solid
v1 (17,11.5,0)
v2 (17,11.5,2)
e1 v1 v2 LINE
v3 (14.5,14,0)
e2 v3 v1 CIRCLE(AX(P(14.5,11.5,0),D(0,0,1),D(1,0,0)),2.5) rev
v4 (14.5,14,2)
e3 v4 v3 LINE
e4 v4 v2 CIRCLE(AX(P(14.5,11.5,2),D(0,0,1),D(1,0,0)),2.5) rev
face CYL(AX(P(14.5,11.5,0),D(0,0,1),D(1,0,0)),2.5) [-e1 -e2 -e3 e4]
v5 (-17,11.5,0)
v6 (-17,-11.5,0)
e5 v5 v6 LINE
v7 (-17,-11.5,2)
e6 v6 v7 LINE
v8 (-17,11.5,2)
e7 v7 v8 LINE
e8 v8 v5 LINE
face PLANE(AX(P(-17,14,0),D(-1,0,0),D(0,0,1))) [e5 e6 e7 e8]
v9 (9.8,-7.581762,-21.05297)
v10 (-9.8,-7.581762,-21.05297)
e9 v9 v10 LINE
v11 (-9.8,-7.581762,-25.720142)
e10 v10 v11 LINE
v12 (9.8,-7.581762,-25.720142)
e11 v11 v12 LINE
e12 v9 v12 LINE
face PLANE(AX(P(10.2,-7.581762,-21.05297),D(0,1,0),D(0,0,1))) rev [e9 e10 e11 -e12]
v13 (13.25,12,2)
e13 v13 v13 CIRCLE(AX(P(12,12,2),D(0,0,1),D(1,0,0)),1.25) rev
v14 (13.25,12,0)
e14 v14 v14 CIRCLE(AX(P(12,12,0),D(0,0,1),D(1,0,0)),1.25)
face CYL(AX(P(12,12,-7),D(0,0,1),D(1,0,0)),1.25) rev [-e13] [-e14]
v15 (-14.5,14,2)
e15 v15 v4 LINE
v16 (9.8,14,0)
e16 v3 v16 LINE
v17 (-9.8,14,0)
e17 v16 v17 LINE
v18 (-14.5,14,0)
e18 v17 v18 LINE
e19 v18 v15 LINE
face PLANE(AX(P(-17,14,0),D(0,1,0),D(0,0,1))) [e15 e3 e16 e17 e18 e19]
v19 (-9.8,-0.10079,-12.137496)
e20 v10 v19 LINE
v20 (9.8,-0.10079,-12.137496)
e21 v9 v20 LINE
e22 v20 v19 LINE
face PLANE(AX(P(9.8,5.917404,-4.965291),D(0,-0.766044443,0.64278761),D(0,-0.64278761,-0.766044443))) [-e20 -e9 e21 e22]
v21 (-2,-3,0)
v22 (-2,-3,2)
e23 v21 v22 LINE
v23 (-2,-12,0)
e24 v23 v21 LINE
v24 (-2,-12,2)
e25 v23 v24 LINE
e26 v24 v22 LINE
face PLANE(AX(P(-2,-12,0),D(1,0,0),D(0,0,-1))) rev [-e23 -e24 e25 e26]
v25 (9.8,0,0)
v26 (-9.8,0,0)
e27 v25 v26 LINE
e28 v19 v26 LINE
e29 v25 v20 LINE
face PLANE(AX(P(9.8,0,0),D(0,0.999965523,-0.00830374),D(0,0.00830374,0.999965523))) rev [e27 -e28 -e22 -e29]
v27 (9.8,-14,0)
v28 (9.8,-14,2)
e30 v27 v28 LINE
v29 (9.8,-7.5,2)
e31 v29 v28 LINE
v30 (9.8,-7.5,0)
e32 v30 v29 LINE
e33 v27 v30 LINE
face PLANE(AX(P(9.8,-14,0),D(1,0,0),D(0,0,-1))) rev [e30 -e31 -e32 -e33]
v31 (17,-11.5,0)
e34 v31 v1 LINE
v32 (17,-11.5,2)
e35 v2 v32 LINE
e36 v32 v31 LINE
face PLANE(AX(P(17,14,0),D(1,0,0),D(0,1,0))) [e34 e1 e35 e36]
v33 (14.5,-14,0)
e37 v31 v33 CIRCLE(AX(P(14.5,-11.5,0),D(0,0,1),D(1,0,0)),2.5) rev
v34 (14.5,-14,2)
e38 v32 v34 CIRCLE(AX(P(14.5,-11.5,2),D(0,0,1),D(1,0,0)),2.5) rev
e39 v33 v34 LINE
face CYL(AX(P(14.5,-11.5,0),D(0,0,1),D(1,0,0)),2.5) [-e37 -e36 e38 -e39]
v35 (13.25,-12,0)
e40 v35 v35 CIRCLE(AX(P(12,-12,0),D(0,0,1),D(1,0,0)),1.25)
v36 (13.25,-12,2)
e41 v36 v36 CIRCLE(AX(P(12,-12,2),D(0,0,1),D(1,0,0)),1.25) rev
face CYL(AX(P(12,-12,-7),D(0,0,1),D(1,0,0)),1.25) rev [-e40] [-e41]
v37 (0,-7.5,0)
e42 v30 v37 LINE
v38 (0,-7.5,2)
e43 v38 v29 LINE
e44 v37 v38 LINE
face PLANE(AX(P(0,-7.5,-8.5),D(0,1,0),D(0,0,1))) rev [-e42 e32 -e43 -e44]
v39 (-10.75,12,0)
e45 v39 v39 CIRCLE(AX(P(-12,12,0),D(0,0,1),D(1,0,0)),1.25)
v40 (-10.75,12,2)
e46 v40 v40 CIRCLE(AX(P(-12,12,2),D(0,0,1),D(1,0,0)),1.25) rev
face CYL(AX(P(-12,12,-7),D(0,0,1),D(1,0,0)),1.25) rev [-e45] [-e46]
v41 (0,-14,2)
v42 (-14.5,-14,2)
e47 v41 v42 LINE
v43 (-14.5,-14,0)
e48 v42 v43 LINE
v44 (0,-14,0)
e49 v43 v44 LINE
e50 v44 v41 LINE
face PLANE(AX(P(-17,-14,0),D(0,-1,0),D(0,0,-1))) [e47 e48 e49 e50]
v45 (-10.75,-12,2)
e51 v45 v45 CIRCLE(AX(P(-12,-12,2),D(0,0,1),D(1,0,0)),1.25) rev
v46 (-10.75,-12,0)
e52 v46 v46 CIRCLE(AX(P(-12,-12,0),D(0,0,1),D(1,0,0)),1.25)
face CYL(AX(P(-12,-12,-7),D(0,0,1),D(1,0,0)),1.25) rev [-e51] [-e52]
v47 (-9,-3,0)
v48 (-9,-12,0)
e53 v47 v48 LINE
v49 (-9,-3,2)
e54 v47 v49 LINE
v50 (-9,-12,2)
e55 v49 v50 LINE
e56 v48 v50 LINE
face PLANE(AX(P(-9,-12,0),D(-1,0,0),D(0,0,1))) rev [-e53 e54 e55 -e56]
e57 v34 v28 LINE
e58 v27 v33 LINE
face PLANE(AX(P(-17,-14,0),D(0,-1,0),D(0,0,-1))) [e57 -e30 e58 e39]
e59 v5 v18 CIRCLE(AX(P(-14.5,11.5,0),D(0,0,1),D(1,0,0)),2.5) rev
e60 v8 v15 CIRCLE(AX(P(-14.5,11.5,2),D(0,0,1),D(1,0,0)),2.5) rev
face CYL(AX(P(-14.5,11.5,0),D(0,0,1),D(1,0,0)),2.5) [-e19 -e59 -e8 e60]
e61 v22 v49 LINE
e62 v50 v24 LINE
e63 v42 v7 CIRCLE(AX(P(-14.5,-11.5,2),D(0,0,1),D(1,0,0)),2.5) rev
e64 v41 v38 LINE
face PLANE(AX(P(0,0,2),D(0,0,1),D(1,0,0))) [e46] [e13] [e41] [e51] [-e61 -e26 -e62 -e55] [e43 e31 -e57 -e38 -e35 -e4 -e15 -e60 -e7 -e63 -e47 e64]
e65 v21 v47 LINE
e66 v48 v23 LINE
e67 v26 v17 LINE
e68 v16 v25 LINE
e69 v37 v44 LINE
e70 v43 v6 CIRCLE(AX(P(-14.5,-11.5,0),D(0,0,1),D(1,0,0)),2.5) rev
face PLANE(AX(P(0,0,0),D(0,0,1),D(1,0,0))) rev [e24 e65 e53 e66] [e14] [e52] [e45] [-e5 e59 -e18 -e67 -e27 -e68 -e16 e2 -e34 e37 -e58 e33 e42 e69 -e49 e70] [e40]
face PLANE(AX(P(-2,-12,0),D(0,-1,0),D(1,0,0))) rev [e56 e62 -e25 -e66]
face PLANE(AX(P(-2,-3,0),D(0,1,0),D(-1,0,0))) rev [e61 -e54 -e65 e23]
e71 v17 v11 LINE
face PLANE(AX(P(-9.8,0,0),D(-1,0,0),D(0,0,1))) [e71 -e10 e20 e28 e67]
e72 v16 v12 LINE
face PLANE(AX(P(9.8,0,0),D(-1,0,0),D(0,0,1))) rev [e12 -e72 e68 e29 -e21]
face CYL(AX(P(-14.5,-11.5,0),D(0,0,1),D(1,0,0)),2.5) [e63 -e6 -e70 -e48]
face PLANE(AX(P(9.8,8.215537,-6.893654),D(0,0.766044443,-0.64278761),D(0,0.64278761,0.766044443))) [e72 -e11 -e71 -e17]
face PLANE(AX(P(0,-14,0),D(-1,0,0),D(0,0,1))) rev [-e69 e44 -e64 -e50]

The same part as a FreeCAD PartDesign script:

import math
import FreeCAD as App
import Part
import Sketcher

V = App.Vector
Q = App.Units.Quantity


def edges_at(feature, points):
    """Names of the edges that pass closest to the given points."""
    edges = feature.Shape.Edges
    near = lambda p: min(range(len(edges)), key=lambda i: edges[i].distToShape(Part.Vertex(*p))[0])
    return sorted({f"Edge{near(p) + 1}" for p in points})


def add_polygon(sketch, points):
    """Adds a closed chain of lines whose ends are joined by coincident constraints."""
    first, n = sketch.GeometryCount, len(points)
    for a, b in zip(points, points[1:] + points[:1]):
        sketch.addGeometry(Part.LineSegment(App.Vector(*a, 0), App.Vector(*b, 0)), False)
    for i in range(n):
        sketch.addConstraint(Sketcher.Constraint("Coincident", first + i, 2, first + (i + 1) % n, 1))

doc = App.newDocument("Part")
body = doc.addObject("PartDesign::Body", "Body")

sketch1 = doc.addObject("Sketcher::SketchObject", "Sketch")
body.addObject(sketch1)
sketch1.AttachmentSupport = (doc.XY_Plane, [""])
sketch1.MapMode = "FlatFace"
add_polygon(sketch1, [(-20, 16), (-20, -16), (20, -16), (20, 16)])
sketch1.addGeometry(Part.Circle(V(-11.5, -11.5, 0), V(0, 0, 1), 1.1), False)
sketch1.addGeometry(Part.Circle(V(11.5, -11.5, 0), V(0, 0, 1), 1.1), False)
sketch1.addGeometry(Part.Circle(V(-11.5, 11.5, 0), V(0, 0, 1), 1.1), False)
sketch1.addGeometry(Part.Circle(V(11.5, 11.5, 0), V(0, 0, 1), 1.1), False)
sketch1.addConstraint([
    Sketcher.Constraint("Vertical", 0),
    Sketcher.Constraint("Horizontal", 1),
    Sketcher.Constraint("Vertical", 2),
    Sketcher.Constraint("Horizontal", 3),
    Sketcher.Constraint("Equal", 4, 5),
    Sketcher.Constraint("Equal", 5, 6),
    Sketcher.Constraint("Equal", 6, 7),
    Sketcher.Constraint("Symmetric", 5, 3, 6, 3, -1, 1),
    Sketcher.Constraint("Symmetric", 4, 3, 7, 3, -1, 1),
    Sketcher.Constraint("Symmetric", 0, 2, 2, 2, -1, 1),
    Sketcher.Constraint("Symmetric", 4, 3, 5, 3, -2),
    Sketcher.Constraint("Diameter", 4, 2.3),
    Sketcher.Constraint("DistanceX", 1, 1, 1, 2, 40.0),
    Sketcher.Constraint("DistanceY", 0, 2, 0, 1, 32.0),
    Sketcher.Constraint("DistanceX", 4, 3, 5, 3, 23.0),
    Sketcher.Constraint("DistanceY", 4, 3, 6, 3, 23.0),
])
pad1 = doc.addObject("PartDesign::Pad", "Pad")
body.addObject(pad1)
pad1.Profile = sketch1
pad1.Length = 3

sketch2 = doc.addObject("Sketcher::SketchObject", "Sketch001")
body.addObject(sketch2)
sketch2.AttachmentSupport = (doc.XY_Plane, [""])
sketch2.MapMode = "FlatFace"
sketch2.AttachmentOffset = App.Placement(V(0, 0, 3), App.Rotation())
add_polygon(sketch2, [(0, -9), (0, -14), (10, -14), (10, -9)])
sketch2.addConstraint([
    Sketcher.Constraint("Vertical", 0),
    Sketcher.Constraint("Horizontal", 1),
    Sketcher.Constraint("Vertical", 2),
    Sketcher.Constraint("Horizontal", 3),
    Sketcher.Constraint("PointOnObject", 0, 2, -2),
    Sketcher.Constraint("DistanceY", 0, 2, 0, 1, 5.0),
    Sketcher.Constraint("DistanceX", 1, 1, 1, 2, 9.8),
    Sketcher.Constraint("DistanceY", 0, 2, -1, 1, 14.0),
])
pocket1 = doc.addObject("PartDesign::Pocket", "Pocket")
body.addObject(pocket1)
pocket1.Profile = sketch2
pocket1.Length = 3

sketch3 = doc.addObject("Sketcher::SketchObject", "Sketch002")
body.addObject(sketch3)
sketch3.AttachmentSupport = (doc.XY_Plane, [""])
sketch3.MapMode = "FlatFace"
sketch3.AttachmentOffset = App.Placement(V(0, 0, 3), App.Rotation())
add_polygon(sketch3, [(-20, 16), (-20, -16), (20, -16), (20, 16)])
add_polygon(sketch3, [(17, -14), (-17, -14), (-17, 14), (17, 14)])
sketch3.addConstraint([
    Sketcher.Constraint("Vertical", 0),
    Sketcher.Constraint("Horizontal", 1),
    Sketcher.Constraint("Vertical", 2),
    Sketcher.Constraint("Horizontal", 3),
    Sketcher.Constraint("Horizontal", 4),
    Sketcher.Constraint("Vertical", 5),
    Sketcher.Constraint("Horizontal", 6),
    Sketcher.Constraint("Vertical", 7),
    Sketcher.Constraint("Symmetric", 0, 2, 2, 2, -1, 1),
    Sketcher.Constraint("Symmetric", 4, 2, 6, 2, -1, 1),
    Sketcher.Constraint("DistanceX", 1, 1, 1, 2, 40.0),
    Sketcher.Constraint("DistanceX", 4, 2, 4, 1, 34.0),
    Sketcher.Constraint("DistanceY", 0, 2, 0, 1, 32.0),
    Sketcher.Constraint("DistanceY", 5, 1, 5, 2, 28.0),
])
pocket2 = doc.addObject("PartDesign::Pocket", "Pocket001")
body.addObject(pocket2)
pocket2.Profile = sketch3
pocket2.Length = 3

sketch4 = doc.addObject("Sketcher::SketchObject", "Sketch003")
body.addObject(sketch4)
sketch4.AttachmentSupport = (doc.XY_Plane, [""])
sketch4.MapMode = "FlatFace"
sketch4.AttachmentOffset = App.Placement(V(0, 0, 3), App.Rotation())
sketch4.addGeometry([
    Part.ArcOfCircle(Part.Circle(V(11.5, 11.5, 0), V(0, 0, 1), 2.5), math.radians(90), math.radians(180)),
    Part.ArcOfCircle(Part.Circle(V(11.5, 11.5, 0), V(0, 0, 1), 2.5), math.radians(180), math.radians(360)),
    Part.ArcOfCircle(Part.Circle(V(11.5, 11.5, 0), V(0, 0, 1), 2.5), math.radians(0), math.radians(90)),
    Part.Circle(V(11.5, 11.5, 0), V(0, 0, 1), 1.1),
    Part.ArcOfCircle(Part.Circle(V(-11.5, 11.5, 0), V(0, 0, 1), 2.5), math.radians(90), math.radians(180)),
    Part.ArcOfCircle(Part.Circle(V(-11.5, 11.5, 0), V(0, 0, 1), 2.5), math.radians(180), math.radians(360)),
    Part.ArcOfCircle(Part.Circle(V(-11.5, 11.5, 0), V(0, 0, 1), 2.5), math.radians(0), math.radians(90)),
    Part.Circle(V(-11.5, 11.5, 0), V(0, 0, 1), 1.1),
    Part.ArcOfCircle(Part.Circle(V(-11.5, -11.5, 0), V(0, 0, 1), 2.5), math.radians(0), math.radians(180)),
    Part.ArcOfCircle(Part.Circle(V(-11.5, -11.5, 0), V(0, 0, 1), 2.5), math.radians(180), math.radians(270)),
    Part.ArcOfCircle(Part.Circle(V(-11.5, -11.5, 0), V(0, 0, 1), 2.5), math.radians(-90), math.radians(0)),
    Part.Circle(V(-11.5, -11.5, 0), V(0, 0, 1), 1.1),
    Part.LineSegment(V(9.8, -9.7, 0), V(9.8, -13.3, 0)),
    Part.ArcOfCircle(Part.Circle(V(11.5, -11.5, 0), V(0, 0, 1), 2.5), math.radians(-133), math.radians(-90)),
    Part.ArcOfCircle(Part.Circle(V(11.5, -11.5, 0), V(0, 0, 1), 2.5), math.radians(-90), math.radians(0)),
    Part.ArcOfCircle(Part.Circle(V(11.5, -11.5, 0), V(0, 0, 1), 2.5), math.radians(0), math.radians(133)),
    Part.Circle(V(11.5, -11.5, 0), V(0, 0, 1), 1.1),
], False)
sketch4.addConstraint([
    Sketcher.Constraint("Tangent", 0, 2, 1, 1),
    Sketcher.Constraint("Tangent", 1, 2, 2, 1),
    Sketcher.Constraint("Tangent", 2, 2, 0, 1),
    Sketcher.Constraint("Tangent", 4, 2, 5, 1),
    Sketcher.Constraint("Tangent", 5, 2, 6, 1),
    Sketcher.Constraint("Tangent", 6, 2, 4, 1),
    Sketcher.Constraint("Tangent", 8, 2, 9, 1),
    Sketcher.Constraint("Tangent", 9, 2, 10, 1),
    Sketcher.Constraint("Tangent", 10, 2, 8, 1),
    Sketcher.Constraint("Coincident", 12, 2, 13, 1),
    Sketcher.Constraint("Tangent", 13, 2, 14, 1),
    Sketcher.Constraint("Tangent", 14, 2, 15, 1),
    Sketcher.Constraint("Coincident", 15, 2, 12, 1),
    Sketcher.Constraint("Vertical", 12),
    Sketcher.Constraint("Coincident", 3, 3, 0, 3),
    Sketcher.Constraint("Coincident", 7, 3, 4, 3),
    Sketcher.Constraint("Coincident", 11, 3, 8, 3),
    Sketcher.Constraint("Coincident", 15, 3, 13, 3),
    Sketcher.Constraint("Coincident", 16, 3, 13, 3),
    Sketcher.Constraint("Equal", 2, 4),
    Sketcher.Constraint("Equal", 3, 7),
    Sketcher.Constraint("Equal", 6, 8),
    Sketcher.Constraint("Equal", 7, 11),
    Sketcher.Constraint("Equal", 10, 13),
    Sketcher.Constraint("Equal", 11, 16),
    Sketcher.Constraint("Symmetric", 0, 3, 8, 3, -1, 1),
    Sketcher.Constraint("Symmetric", 4, 3, 13, 3, -1, 1),
    Sketcher.Constraint("Symmetric", 0, 3, 4, 3, -2),
    Sketcher.Constraint("Horizontal", 7, 3, 0, 2),
    Sketcher.Constraint("Horizontal", 0, 2, 1, 2),
    Sketcher.Constraint("Horizontal", 1, 2, 4, 2),
    Sketcher.Constraint("Horizontal", 4, 2, 5, 2),
    Sketcher.Constraint("Horizontal", 16, 3, 8, 2),
    Sketcher.Constraint("Horizontal", 8, 2, 10, 2),
    Sketcher.Constraint("Horizontal", 10, 2, 14, 2),
    Sketcher.Constraint("Vertical", 16, 3, 2, 2),
    Sketcher.Constraint("Vertical", 11, 3, 6, 2),
    Sketcher.Constraint("Vertical", 6, 2, 9, 2),
    Sketcher.Constraint("Vertical", 2, 2, 13, 2),
    Sketcher.Constraint("Diameter", 3, 2.3),
    Sketcher.Constraint("Radius", 0, 2.5),
    Sketcher.Constraint("DistanceX", -1, 1, 0, 2, 9.0),
    Sketcher.Constraint("DistanceY", -1, 1, 2, 2, 14.0),
    Sketcher.Constraint("DistanceX", -1, 1, 12, 2, 9.8),
])
pad2 = doc.addObject("PartDesign::Pad", "Pad001")
body.addObject(pad2)
pad2.Profile = sketch4
pad2.Length = 1

sketch5 = doc.addObject("Sketcher::SketchObject", "Sketch004")
body.addObject(sketch5)
sketch5.AttachmentSupport = (doc.XY_Plane, [""])
sketch5.MapMode = "FlatFace"
sketch5.AttachmentOffset = App.Placement(V(0, 0, 3), App.Rotation())
sketch5.addGeometry([
    Part.LineSegment(V(14, -14, 0), V(14, -11.5, 0)),
    Part.LineSegment(V(14, -11.5, 0), V(12.7, -11.5, 0)),
    Part.ArcOfCircle(Part.Circle(V(11.5, -11.5, 0), V(0, 0, 1), 1.1), math.radians(180), math.radians(360)),
    Part.LineSegment(V(10.3, -11.5, 0), V(9.8, -11.5, 0)),
    Part.LineSegment(V(9.8, -11.5, 0), V(9.8, -14, 0)),
    Part.LineSegment(V(9.8, -14, 0), V(14, -14, 0)),
    Part.ArcOfCircle(Part.Circle(V(-11.5, -11.5, 0), V(0, 0, 1), 2.5), math.radians(180), math.radians(270)),
    Part.LineSegment(V(-14, -11.5, 0), V(-14, -14, 0)),
    Part.LineSegment(V(-14, -14, 0), V(-11.5, -14, 0)),
    Part.LineSegment(V(-9, -14, 0), V(-9, -11.5, 0)),
    Part.ArcOfCircle(Part.Circle(V(-11.5, -11.5, 0), V(0, 0, 1), 2.5), math.radians(-90), math.radians(0)),
    Part.LineSegment(V(-11.5, -14, 0), V(-9, -14, 0)),
    Part.ArcOfCircle(Part.Circle(V(-11.5, 11.5, 0), V(0, 0, 1), 2.5), math.radians(90), math.radians(180)),
    Part.LineSegment(V(-11.5, 14, 0), V(-14, 14, 0)),
    Part.LineSegment(V(-14, 14, 0), V(-14, 11.5, 0)),
    Part.LineSegment(V(-9, 11.5, 0), V(-9, 14, 0)),
    Part.LineSegment(V(-9, 14, 0), V(-11.5, 14, 0)),
    Part.ArcOfCircle(Part.Circle(V(-11.5, 11.5, 0), V(0, 0, 1), 2.5), math.radians(0), math.radians(90)),
    Part.ArcOfCircle(Part.Circle(V(11.5, 11.5, 0), V(0, 0, 1), 2.5), math.radians(90), math.radians(180)),
    Part.LineSegment(V(11.5, 14, 0), V(9, 14, 0)),
    Part.LineSegment(V(9, 14, 0), V(9, 11.5, 0)),
    Part.ArcOfCircle(Part.Circle(V(11.5, 11.5, 0), V(0, 0, 1), 2.5), math.radians(0), math.radians(90)),
    Part.LineSegment(V(14, 11.5, 0), V(14, 14, 0)),
    Part.LineSegment(V(14, 14, 0), V(11.5, 14, 0)),
], False)
sketch5.addConstraint([
    Sketcher.Constraint("Coincident", 0, 2, 1, 1),
    Sketcher.Constraint("Coincident", 1, 2, 2, 2),
    Sketcher.Constraint("Coincident", 2, 1, 3, 1),
    Sketcher.Constraint("Coincident", 3, 2, 4, 1),
    Sketcher.Constraint("Coincident", 4, 2, 5, 1),
    Sketcher.Constraint("Coincident", 5, 2, 0, 1),
    Sketcher.Constraint("Tangent", 6, 1, 7, 1),
    Sketcher.Constraint("Coincident", 7, 2, 8, 1),
    Sketcher.Constraint("Tangent", 8, 2, 6, 2),
    Sketcher.Constraint("Tangent", 9, 2, 10, 2),
    Sketcher.Constraint("Tangent", 10, 1, 11, 1),
    Sketcher.Constraint("Coincident", 11, 2, 9, 1),
    Sketcher.Constraint("Tangent", 12, 1, 13, 1),
    Sketcher.Constraint("Coincident", 13, 2, 14, 1),
    Sketcher.Constraint("Tangent", 14, 2, 12, 2),
    Sketcher.Constraint("Coincident", 15, 2, 16, 1),
    Sketcher.Constraint("Tangent", 16, 2, 17, 2),
    Sketcher.Constraint("Tangent", 17, 1, 15, 1),
    Sketcher.Constraint("Tangent", 18, 1, 19, 1),
    Sketcher.Constraint("Coincident", 19, 2, 20, 1),
    Sketcher.Constraint("Tangent", 20, 2, 18, 2),
    Sketcher.Constraint("Tangent", 21, 1, 22, 1),
    Sketcher.Constraint("Coincident", 22, 2, 23, 1),
    Sketcher.Constraint("Tangent", 23, 2, 21, 2),
    Sketcher.Constraint("Vertical", 0),
    Sketcher.Constraint("Horizontal", 1),
    Sketcher.Constraint("Horizontal", 3),
    Sketcher.Constraint("Vertical", 4),
    Sketcher.Constraint("Horizontal", 5),
    Sketcher.Constraint("Vertical", 7),
    Sketcher.Constraint("Horizontal", 8),
    Sketcher.Constraint("Vertical", 9),
    Sketcher.Constraint("Horizontal", 11),
    Sketcher.Constraint("Horizontal", 13),
    Sketcher.Constraint("Vertical", 14),
    Sketcher.Constraint("Vertical", 15),
    Sketcher.Constraint("Horizontal", 16),
    Sketcher.Constraint("Horizontal", 19),
    Sketcher.Constraint("Vertical", 20),
    Sketcher.Constraint("Vertical", 22),
    Sketcher.Constraint("Horizontal", 23),
    Sketcher.Constraint("Coincident", 10, 3, 6, 3),
    Sketcher.Constraint("Coincident", 17, 3, 12, 3),
    Sketcher.Constraint("Coincident", 21, 3, 18, 3),
    Sketcher.Constraint("Equal", 6, 10),
    Sketcher.Constraint("Equal", 10, 12),
    Sketcher.Constraint("Equal", 12, 17),
    Sketcher.Constraint("Equal", 17, 18),
    Sketcher.Constraint("Equal", 18, 21),
    Sketcher.Constraint("Symmetric", 2, 3, 12, 3, -1, 1),
    Sketcher.Constraint("Symmetric", 6, 3, 18, 3, -1, 1),
    Sketcher.Constraint("Symmetric", 5, 2, 13, 2, -1, 1),
    Sketcher.Constraint("Symmetric", 2, 3, 6, 3, -2),
    Sketcher.Constraint("Horizontal", 10, 3, 0, 2),
    Sketcher.Constraint("Horizontal", 1, 2, 2, 1),
    Sketcher.Constraint("Radius", 6, 2.5),
    Sketcher.Constraint("Radius", 2, 1.15),
    Sketcher.Constraint("DistanceX", 5, 1, 5, 2, 4.2),
    Sketcher.Constraint("DistanceX", -1, 1, 0, 2, 14.0),
    Sketcher.Constraint("DistanceY", 4, 2, -1, 1, 14.0),
])
pad3 = doc.addObject("PartDesign::Pad", "Pad002")
body.addObject(pad3)
pad3.Profile = sketch5
pad3.Length = 1

sketch6 = doc.addObject("Sketcher::SketchObject", "Sketch005")
body.addObject(sketch6)
sketch6.AttachmentSupport = (doc.YZ_Plane, [""])
sketch6.MapMode = "FlatFace"
sketch6.AttachmentOffset = App.Placement(V(0, 0, -17), App.Rotation())
add_polygon(sketch6, [(-8.5, -26.8), (-7.6, -21.1), (-0.1, -12.1), (0, 0), (14, 0), (-5.3, -23)])
sketch6.addConstraint([
    Sketcher.Constraint("Horizontal", 3),
    Sketcher.Constraint("Coincident", 2, 2, -1, 1),
    Sketcher.Constraint("Parallel", 1, 4),
    Sketcher.Constraint("Parallel", 4, 5),
    Sketcher.Constraint("DistanceX", 3, 1, 3, 2, 14.0),
    Sketcher.Constraint("Angle", 1, Q("50 deg")),
    Sketcher.Constraint("Distance", 4, 30.0),
    Sketcher.Constraint("Distance", 5, 5.0),
    Sketcher.Constraint("Distance", 0, 5.830952),
    Sketcher.Constraint("DistanceX", 0, 2, -1, 1, 7.581762),
    Sketcher.Constraint("DistanceX", 1, 2, -1, 1, 0.10079),
])
pad4 = doc.addObject("PartDesign::Pad", "Pad003")
body.addObject(pad4)
pad4.Profile = sketch6
pad4.Length = 26.8

sketch7 = doc.addObject("Sketcher::SketchObject", "Sketch006")
body.addObject(sketch7)
sketch7.AttachmentSupport = (doc.YZ_Plane, [""])
sketch7.MapMode = "FlatFace"
sketch7.AttachmentOffset = App.Placement(V(0, 0, -17), App.Rotation())
add_polygon(sketch7, [(0, 0), (14, 0), (-8, -27), (-8, -21), (0, -12)])
sketch7.addConstraint([
    Sketcher.Constraint("Horizontal", 0),
    Sketcher.Constraint("Coincident", 4, 2, -1, 1),
    Sketcher.Constraint("Parallel", 1, 3),
    Sketcher.Constraint("DistanceX", 0, 1, 0, 2, 14.0),
    Sketcher.Constraint("Angle", 1, Q("-130 deg")),
    Sketcher.Constraint("Distance", 1, 35.0),
    Sketcher.Constraint("Distance", 2, 5.830952),
    Sketcher.Constraint("DistanceX", 2, 2, -1, 1, 7.581762),
    Sketcher.Constraint("DistanceX", 3, 2, -1, 1, 0.10079),
])
pocket3 = doc.addObject("PartDesign::Pocket", "Pocket002")
body.addObject(pocket3)
pocket3.Profile = sketch7
pocket3.Length = 7.2
pocket3.Reversed = True

sketch8 = doc.addObject("Sketcher::SketchObject", "Sketch007")
body.addObject(sketch8)
sketch8.AttachmentSupport = (doc.YZ_Plane, [""])
sketch8.MapMode = "FlatFace"
sketch8.AttachmentOffset = App.Placement(V(0, 0, -9.8), App.Rotation())
add_polygon(sketch8, [(-7.6, -28.1), (-10, -28.1), (-10, -21.1), (-7.6, -21.1)])
sketch8.addConstraint([
    Sketcher.Constraint("Horizontal", 0),
    Sketcher.Constraint("Vertical", 1),
    Sketcher.Constraint("Horizontal", 2),
    Sketcher.Constraint("Vertical", 3),
    Sketcher.Constraint("DistanceY", 1, 1, 1, 2, 7.003092),
    Sketcher.Constraint("DistanceX", 0, 2, 0, 1, 2.463875),
    Sketcher.Constraint("DistanceY", 1, 2, -1, 1, 21.05297),
    Sketcher.Constraint("DistanceX", 2, 2, -1, 1, 7.581762),
])
pocket4 = doc.addObject("PartDesign::Pocket", "Pocket003")
body.addObject(pocket4)
pocket4.Profile = sketch8
pocket4.Length = 20
pocket4.Reversed = True

sketch9 = doc.addObject("Sketcher::SketchObject", "Sketch008")
body.addObject(sketch9)
sketch9.AttachmentSupport = (doc.XY_Plane, [""])
sketch9.MapMode = "FlatFace"
sketch9.AttachmentOffset = App.Placement(V(0, 0, 3), App.Rotation())
sketch9.addGeometry([
    Part.LineSegment(V(-14, -11.5, 0), V(-14, -14, 0)),
    Part.LineSegment(V(-14, -14, 0), V(-9, -14, 0)),
    Part.LineSegment(V(-9, -14, 0), V(-9, -11.5, 0)),
    Part.ArcOfCircle(Part.Circle(V(-11.5, -11.5, 0), V(0, 0, 1), 2.5), math.radians(0), math.radians(180)),
    Part.Circle(V(-11.5, -11.5, 0), V(0, 0, 1), 1.1),
    Part.LineSegment(V(-14, 14, 0), V(-14, 11.5, 0)),
    Part.ArcOfCircle(Part.Circle(V(-11.5, 11.5, 0), V(0, 0, 1), 2.5), math.radians(180), math.radians(360)),
    Part.LineSegment(V(-9, 11.5, 0), V(-9, 14, 0)),
    Part.LineSegment(V(-9, 14, 0), V(-14, 14, 0)),
    Part.Circle(V(-11.5, 11.5, 0), V(0, 0, 1), 1.1),
    Part.LineSegment(V(9.8, -14, 0), V(14, -14, 0)),
    Part.LineSegment(V(14, -14, 0), V(14, -11.5, 0)),
    Part.ArcOfCircle(Part.Circle(V(11.5, -11.5, 0), V(0, 0, 1), 2.5), math.radians(0), math.radians(133)),
    Part.LineSegment(V(9.8, -9.7, 0), V(9.8, -14, 0)),
    Part.Circle(V(11.5, -11.5, 0), V(0, 0, 1), 1.1),
    Part.LineSegment(V(9, 14, 0), V(9, 11.5, 0)),
    Part.ArcOfCircle(Part.Circle(V(11.5, 11.5, 0), V(0, 0, 1), 2.5), math.radians(180), math.radians(360)),
    Part.LineSegment(V(14, 11.5, 0), V(14, 14, 0)),
    Part.LineSegment(V(14, 14, 0), V(9, 14, 0)),
    Part.Circle(V(11.5, 11.5, 0), V(0, 0, 1), 1.1),
], False)
sketch9.addConstraint([
    Sketcher.Constraint("Coincident", 0, 2, 1, 1),
    Sketcher.Constraint("Coincident", 1, 2, 2, 1),
    Sketcher.Constraint("Tangent", 2, 2, 3, 1),
    Sketcher.Constraint("Tangent", 3, 2, 0, 1),
    Sketcher.Constraint("Tangent", 5, 2, 6, 1),
    Sketcher.Constraint("Tangent", 6, 2, 7, 1),
    Sketcher.Constraint("Coincident", 7, 2, 8, 1),
    Sketcher.Constraint("Coincident", 8, 2, 5, 1),
    Sketcher.Constraint("Coincident", 10, 2, 11, 1),
    Sketcher.Constraint("Tangent", 11, 2, 12, 1),
    Sketcher.Constraint("Coincident", 12, 2, 13, 1),
    Sketcher.Constraint("Coincident", 13, 2, 10, 1),
    Sketcher.Constraint("Tangent", 15, 2, 16, 1),
    Sketcher.Constraint("Tangent", 16, 2, 17, 1),
    Sketcher.Constraint("Coincident", 17, 2, 18, 1),
    Sketcher.Constraint("Coincident", 18, 2, 15, 1),
    Sketcher.Constraint("Vertical", 0),
    Sketcher.Constraint("Horizontal", 1),
    Sketcher.Constraint("Vertical", 2),
    Sketcher.Constraint("Vertical", 5),
    Sketcher.Constraint("Vertical", 7),
    Sketcher.Constraint("Horizontal", 8),
    Sketcher.Constraint("Horizontal", 10),
    Sketcher.Constraint("Vertical", 11),
    Sketcher.Constraint("Vertical", 13),
    Sketcher.Constraint("Vertical", 15),
    Sketcher.Constraint("Vertical", 17),
    Sketcher.Constraint("Horizontal", 18),
    Sketcher.Constraint("Coincident", 4, 3, 3, 3),
    Sketcher.Constraint("Coincident", 9, 3, 6, 3),
    Sketcher.Constraint("Coincident", 14, 3, 12, 3),
    Sketcher.Constraint("Coincident", 19, 3, 16, 3),
    Sketcher.Constraint("Equal", 3, 6),
    Sketcher.Constraint("Equal", 4, 9),
    Sketcher.Constraint("Equal", 6, 12),
    Sketcher.Constraint("Equal", 9, 14),
    Sketcher.Constraint("Equal", 12, 16),
    Sketcher.Constraint("Equal", 14, 19),
    Sketcher.Constraint("Symmetric", 6, 3, 12, 3, -1, 1),
    Sketcher.Constraint("Symmetric", 3, 3, 16, 3, -1, 1),
    Sketcher.Constraint("Symmetric", 3, 3, 12, 3, -2),
    Sketcher.Constraint("Horizontal", 1, 2, 10, 2),
    Sketcher.Constraint("Horizontal", 8, 2, 17, 2),
    Sketcher.Constraint("Equal", 2, 5),
    Sketcher.Constraint("Diameter", 4, 2.3),
    Sketcher.Constraint("Radius", 3, 2.5),
    Sketcher.Constraint("DistanceX", 10, 1, 10, 2, 4.2),
    Sketcher.Constraint("DistanceY", 0, 2, 0, 1, 2.5),
    Sketcher.Constraint("DistanceX", 0, 2, -1, 1, 14.0),
    Sketcher.Constraint("DistanceY", 0, 2, -1, 1, 14.0),
])
pocket5 = doc.addObject("PartDesign::Pocket", "Pocket004")
body.addObject(pocket5)
pocket5.Profile = sketch9
pocket5.Length = 1
pocket5.Reversed = True

sketch10 = doc.addObject("Sketcher::SketchObject", "Sketch009")
body.addObject(sketch10)
sketch10.AttachmentSupport = (doc.XY_Plane, [""])
sketch10.MapMode = "FlatFace"
sketch10.addGeometry([
    Part.Circle(V(-11.5, 11.5, 0), V(0, 0, 1), 1.1),
    Part.Circle(V(11.5, 11.5, 0), V(0, 0, 1), 1.1),
    Part.Circle(V(11.5, -11.5, 0), V(0, 0, 1), 1.1),
    Part.Circle(V(-11.5, -11.5, 0), V(0, 0, 1), 1.1),
], False)
sketch10.addConstraint([
    Sketcher.Constraint("Equal", 0, 1),
    Sketcher.Constraint("Equal", 1, 2),
    Sketcher.Constraint("Equal", 2, 3),
    Sketcher.Constraint("Symmetric", 0, 3, 2, 3, -1, 1),
    Sketcher.Constraint("Symmetric", 1, 3, 3, 3, -1, 1),
    Sketcher.Constraint("Symmetric", 0, 3, 1, 3, -2),
    Sketcher.Constraint("Diameter", 0, 2.3),
    Sketcher.Constraint("DistanceX", 0, 3, 1, 3, 23.0),
    Sketcher.Constraint("DistanceY", 2, 3, 1, 3, 23.0),
])
pad5 = doc.addObject("PartDesign::Pad", "Pad004")
body.addObject(pad5)
pad5.Profile = sketch10
pad5.Length = 3

sketch11 = doc.addObject("Sketcher::SketchObject", "Sketch010")
body.addObject(sketch11)
sketch11.AttachmentSupport = (doc.XY_Plane, [""])
sketch11.MapMode = "FlatFace"
sketch11.AttachmentOffset = App.Placement(V(0, 0, 3), App.Rotation())
sketch11.addGeometry([
    Part.ArcOfCircle(Part.Circle(V(-12, 12, 0), V(0, 0, 1), 1.2), math.radians(0), math.radians(270)),
    Part.ArcOfCircle(Part.Circle(V(-12, 12, 0), V(0, 0, 1), 1.3), math.radians(-90), math.radians(0)),
    Part.ArcOfCircle(Part.Circle(V(12, 12, 0), V(0, 0, 1), 1.3), math.radians(-180), math.radians(-90)),
    Part.ArcOfCircle(Part.Circle(V(12, 12, 0), V(0, 0, 1), 1.3), math.radians(-90), math.radians(0)),
    Part.ArcOfCircle(Part.Circle(V(12, 12, 0), V(0, 0, 1), 1.2), math.radians(0), math.radians(180)),
    Part.ArcOfCircle(Part.Circle(V(12, -12, 0), V(0, 0, 1), 1.3), math.radians(90), math.radians(180)),
    Part.ArcOfCircle(Part.Circle(V(12, -12, 0), V(0, 0, 1), 1.2), math.radians(180), math.radians(360)),
    Part.ArcOfCircle(Part.Circle(V(12, -12, 0), V(0, 0, 1), 1.3), math.radians(0), math.radians(90)),
    Part.ArcOfCircle(Part.Circle(V(-12, -12, 0), V(0, 0, 1), 1.3), math.radians(0), math.radians(90)),
    Part.ArcOfCircle(Part.Circle(V(-12, -12, 0), V(0, 0, 1), 1.2), math.radians(90), math.radians(360)),
], False)
sketch11.addConstraint([
    Sketcher.Constraint("Tangent", 0, 1, 1, 2),
    Sketcher.Constraint("Coincident", 1, 1, 0, 2),
    Sketcher.Constraint("Tangent", 2, 2, 3, 1),
    Sketcher.Constraint("Tangent", 3, 2, 4, 1),
    Sketcher.Constraint("Tangent", 4, 2, 2, 1),
    Sketcher.Constraint("Tangent", 5, 2, 6, 1),
    Sketcher.Constraint("Tangent", 6, 2, 7, 1),
    Sketcher.Constraint("Tangent", 7, 2, 5, 1),
    Sketcher.Constraint("Tangent", 8, 1, 9, 2),
    Sketcher.Constraint("Coincident", 9, 1, 8, 2),
    Sketcher.Constraint("Equal", 1, 2),
    Sketcher.Constraint("Equal", 4, 5),
    Sketcher.Constraint("Equal", 7, 8),
    Sketcher.Constraint("Symmetric", 0, 3, 5, 3, -1, 1),
    Sketcher.Constraint("Symmetric", 2, 3, 8, 3, -1, 1),
    Sketcher.Constraint("Symmetric", 0, 3, 2, 3, -2),
    Sketcher.Constraint("Horizontal", 4, 3, 0, 1),
    Sketcher.Constraint("Horizontal", 0, 1, 3, 2),
    Sketcher.Constraint("Horizontal", 3, 2, 4, 2),
    Sketcher.Constraint("Horizontal", 9, 3, 5, 2),
    Sketcher.Constraint("Horizontal", 5, 2, 6, 2),
    Sketcher.Constraint("Horizontal", 6, 2, 8, 1),
    Sketcher.Constraint("Vertical", 9, 3, 1, 1),
    Sketcher.Constraint("Vertical", 7, 3, 2, 2),
    Sketcher.Constraint("Vertical", 2, 2, 7, 2),
    Sketcher.Constraint("Vertical", 1, 1, 9, 1),
    Sketcher.Constraint("Radius", 0, 1.25),
    Sketcher.Constraint("DistanceX", 0, 3, -1, 1, 12.0),
    Sketcher.Constraint("DistanceY", -1, 1, 0, 3, 12.0),
])
pocket6 = doc.addObject("PartDesign::Pocket", "Pocket005")
body.addObject(pocket6)
pocket6.Profile = sketch11
pocket6.Length = 10

sketch12 = doc.addObject("Sketcher::SketchObject", "Sketch011")
body.addObject(sketch12)
sketch12.AttachmentSupport = (doc.XY_Plane, [""])
sketch12.MapMode = "FlatFace"
sketch12.AttachmentOffset = App.Placement(V(0, 0, 4), App.Rotation())
sketch12.addGeometry([
    Part.LineSegment(V(14, 12, 0), V(14, 14, 0)),
    Part.LineSegment(V(14, 14, 0), V(10, 14, 0)),
    Part.LineSegment(V(10, 14, 0), V(10, 12, 0)),
    Part.ArcOfCircle(Part.Circle(V(12, 12, 0), V(0, 0, 1), 2), math.radians(180), math.radians(360)),
    Part.Circle(V(12, 12, 0), V(0, 0, 1), 1.2),
    Part.LineSegment(V(-10, 12, 0), V(-10, 14, 0)),
    Part.LineSegment(V(-10, 14, 0), V(-14, 14, 0)),
    Part.LineSegment(V(-14, 14, 0), V(-14, 12, 0)),
    Part.ArcOfCircle(Part.Circle(V(-12, 12, 0), V(0, 0, 1), 2), math.radians(180), math.radians(360)),
    Part.Circle(V(-12, 12, 0), V(0, 0, 1), 1.2),
    Part.ArcOfCircle(Part.Circle(V(-12, -12, 0), V(0, 0, 1), 2), math.radians(0), math.radians(180)),
    Part.LineSegment(V(-14, -12, 0), V(-14, -14, 0)),
    Part.LineSegment(V(-14, -14, 0), V(-10, -14, 0)),
    Part.LineSegment(V(-10, -14, 0), V(-10, -12, 0)),
    Part.Circle(V(-12, -12, 0), V(0, 0, 1), 1.2),
    Part.LineSegment(V(14, -14, 0), V(14, -12, 0)),
    Part.ArcOfCircle(Part.Circle(V(12, -12, 0), V(0, 0, 1), 2), math.radians(0), math.radians(180)),
    Part.LineSegment(V(10, -12, 0), V(10, -14, 0)),
    Part.LineSegment(V(10, -14, 0), V(14, -14, 0)),
    Part.Circle(V(12, -12, 0), V(0, 0, 1), 1.2),
], False)
sketch12.addConstraint([
    Sketcher.Constraint("Coincident", 0, 2, 1, 1),
    Sketcher.Constraint("Coincident", 1, 2, 2, 1),
    Sketcher.Constraint("Tangent", 2, 2, 3, 1),
    Sketcher.Constraint("Tangent", 3, 2, 0, 1),
    Sketcher.Constraint("Coincident", 5, 2, 6, 1),
    Sketcher.Constraint("Coincident", 6, 2, 7, 1),
    Sketcher.Constraint("Tangent", 7, 2, 8, 1),
    Sketcher.Constraint("Tangent", 8, 2, 5, 1),
    Sketcher.Constraint("Tangent", 10, 2, 11, 1),
    Sketcher.Constraint("Coincident", 11, 2, 12, 1),
    Sketcher.Constraint("Coincident", 12, 2, 13, 1),
    Sketcher.Constraint("Tangent", 13, 2, 10, 1),
    Sketcher.Constraint("Tangent", 15, 2, 16, 1),
    Sketcher.Constraint("Tangent", 16, 2, 17, 1),
    Sketcher.Constraint("Coincident", 17, 2, 18, 1),
    Sketcher.Constraint("Coincident", 18, 2, 15, 1),
    Sketcher.Constraint("Vertical", 0),
    Sketcher.Constraint("Horizontal", 1),
    Sketcher.Constraint("Vertical", 2),
    Sketcher.Constraint("Vertical", 5),
    Sketcher.Constraint("Horizontal", 6),
    Sketcher.Constraint("Vertical", 7),
    Sketcher.Constraint("Vertical", 11),
    Sketcher.Constraint("Horizontal", 12),
    Sketcher.Constraint("Vertical", 13),
    Sketcher.Constraint("Vertical", 15),
    Sketcher.Constraint("Vertical", 17),
    Sketcher.Constraint("Horizontal", 18),
    Sketcher.Constraint("Coincident", 4, 3, 3, 3),
    Sketcher.Constraint("Coincident", 9, 3, 8, 3),
    Sketcher.Constraint("Coincident", 14, 3, 10, 3),
    Sketcher.Constraint("Coincident", 19, 3, 16, 3),
    Sketcher.Constraint("Equal", 3, 8),
    Sketcher.Constraint("Equal", 4, 9),
    Sketcher.Constraint("Equal", 8, 10),
    Sketcher.Constraint("Equal", 9, 14),
    Sketcher.Constraint("Equal", 10, 16),
    Sketcher.Constraint("Equal", 14, 19),
    Sketcher.Constraint("Symmetric", 3, 3, 10, 3, -1, 1),
    Sketcher.Constraint("Symmetric", 8, 3, 16, 3, -1, 1),
    Sketcher.Constraint("Symmetric", 3, 3, 8, 3, -2),
    Sketcher.Constraint("Horizontal", 1, 2, 5, 2),
    Sketcher.Constraint("Horizontal", 12, 2, 17, 2),
    Sketcher.Constraint("Equal", 7, 11),
    Sketcher.Constraint("Radius", 3, 2.0),
    Sketcher.Constraint("Diameter", 4, 2.5),
    Sketcher.Constraint("DistanceY", 0, 1, 0, 2, 2.0),
    Sketcher.Constraint("DistanceX", -1, 1, 3, 3, 12.0),
    Sketcher.Constraint("DistanceY", -1, 1, 3, 3, 12.0),
])
pad6 = doc.addObject("PartDesign::Pad", "Pad005")
body.addObject(pad6)
pad6.Profile = sketch12
pad6.Length = 1
pad6.Reversed = True

sketch13 = doc.addObject("Sketcher::SketchObject", "Sketch012")
body.addObject(sketch13)
sketch13.AttachmentSupport = (doc.XY_Plane, [""])
sketch13.MapMode = "FlatFace"
sketch13.AttachmentOffset = App.Placement(V(0, 0, 3), App.Rotation())
add_polygon(sketch13, [(9.8, -9), (9.8, -9.8), (16, -9.8), (16, 9.8), (-16, 9.8), (-16, -9.8), (-8, -9.8), (-8, -12.8), (0, -12.8), (0, -9)])
sketch13.addConstraint([
    Sketcher.Constraint("Vertical", 0),
    Sketcher.Constraint("Horizontal", 1),
    Sketcher.Constraint("Vertical", 2),
    Sketcher.Constraint("Horizontal", 3),
    Sketcher.Constraint("Vertical", 4),
    Sketcher.Constraint("Horizontal", 5),
    Sketcher.Constraint("Vertical", 6),
    Sketcher.Constraint("Horizontal", 7),
    Sketcher.Constraint("Vertical", 8),
    Sketcher.Constraint("Horizontal", 9),
    Sketcher.Constraint("Symmetric", 1, 2, 3, 2, -1, 1),
    Sketcher.Constraint("PointOnObject", 7, 2, -2),
    Sketcher.Constraint("Horizontal", 1, 2, 4, 2),
    Sketcher.Constraint("Equal", 5, 7),
    Sketcher.Constraint("DistanceX", 3, 2, 3, 1, 32.0),
    Sketcher.Constraint("DistanceY", 6, 2, 6, 1, 3.0),
    Sketcher.Constraint("DistanceX", 1, 1, 1, 2, 6.2),
    Sketcher.Constraint("DistanceY", 2, 1, 2, 2, 19.5),
    Sketcher.Constraint("DistanceY", 8, 2, -1, 1, 9.0),
])
pocket7 = doc.addObject("PartDesign::Pocket", "Pocket006")
body.addObject(pocket7)
pocket7.Profile = sketch13
pocket7.Length = 1.5
doc.recompute()

fillet = doc.addObject("PartDesign::Fillet", "Fillet")
body.addObject(fillet)
fillet.Base = (pocket7, edges_at(pocket7, [
    (-17, -14, 1.5),
    (17, -14, 1.5),
    (-17, 14, 1.5),
    (17, 14, 1.5),
]))
fillet.Radius = 2.5

sketch14 = doc.addObject("Sketcher::SketchObject", "Sketch013")
body.addObject(sketch14)
sketch14.AttachmentSupport = (doc.XY_Plane, [""])
sketch14.MapMode = "FlatFace"
sketch14.AttachmentOffset = App.Placement(V(0, 0, 1.5), App.Rotation())
add_polygon(sketch14, [(0, -7.5), (0, -9), (9.8, -9), (9.8, -7.5)])
sketch14.addConstraint([
    Sketcher.Constraint("Vertical", 0),
    Sketcher.Constraint("Horizontal", 1),
    Sketcher.Constraint("Vertical", 2),
    Sketcher.Constraint("Horizontal", 3),
    Sketcher.Constraint("PointOnObject", 0, 2, -2),
    Sketcher.Constraint("DistanceX", 1, 1, 1, 2, 9.8),
    Sketcher.Constraint("DistanceY", 0, 2, 0, 1, 1.5),
    Sketcher.Constraint("DistanceY", 0, 2, -1, 1, 9.0),
])
pocket8 = doc.addObject("PartDesign::Pocket", "Pocket007")
body.addObject(pocket8)
pocket8.Profile = sketch14
pocket8.Length = 10

sketch15 = doc.addObject("Sketcher::SketchObject", "Sketch014")
body.addObject(sketch15)
sketch15.AttachmentSupport = (doc.XY_Plane, [""])
sketch15.MapMode = "FlatFace"
sketch15.AttachmentOffset = App.Placement(V(0, 0, 1.5), App.Rotation())
add_polygon(sketch15, [(0, -12.8), (0, -7.5), (9.8, -7.5), (9.8, -9.8), (16, -9.8), (16, 9.8), (-16, 9.8), (-16, -9.8), (-8, -9.8), (-8, -12.8)])
sketch15.addConstraint([
    Sketcher.Constraint("Vertical", 0),
    Sketcher.Constraint("Horizontal", 1),
    Sketcher.Constraint("Vertical", 2),
    Sketcher.Constraint("Horizontal", 3),
    Sketcher.Constraint("Vertical", 4),
    Sketcher.Constraint("Horizontal", 5),
    Sketcher.Constraint("Vertical", 6),
    Sketcher.Constraint("Horizontal", 7),
    Sketcher.Constraint("Vertical", 8),
    Sketcher.Constraint("Horizontal", 9),
    Sketcher.Constraint("Symmetric", 3, 2, 5, 2, -1, 1),
    Sketcher.Constraint("PointOnObject", 0, 2, -2),
    Sketcher.Constraint("Horizontal", 3, 2, 6, 2),
    Sketcher.Constraint("Equal", 7, 9),
    Sketcher.Constraint("DistanceX", 5, 2, 5, 1, 32.0),
    Sketcher.Constraint("DistanceY", 8, 2, 8, 1, 3.0),
    Sketcher.Constraint("DistanceX", 1, 1, 1, 2, 9.8),
    Sketcher.Constraint("DistanceY", 4, 1, 4, 2, 19.5),
    Sketcher.Constraint("DistanceY", 0, 1, 0, 2, 5.25),
])
pad7 = doc.addObject("PartDesign::Pad", "Pad006")
body.addObject(pad7)
pad7.Profile = sketch15
pad7.Length = 1.5

sketch16 = doc.addObject("Sketcher::SketchObject", "Sketch015")
body.addObject(sketch16)
sketch16.AttachmentSupport = (doc.XY_Plane, [""])
sketch16.MapMode = "FlatFace"
sketch16.AttachmentOffset = App.Placement(V(0, 0, 3), App.Rotation())
sketch16.addGeometry([
    Part.LineSegment(V(0, -7.5, 0), V(9.8, -7.5, 0)),
    Part.LineSegment(V(9.8, -7.5, 0), V(9.8, -14, 0)),
    Part.LineSegment(V(9.8, -14, 0), V(10, -14, 0)),
    Part.LineSegment(V(10, -14, 0), V(10, -12, 0)),
    Part.ArcOfCircle(Part.Circle(V(12, -12, 0), V(0, 0, 1), 2), math.radians(0), math.radians(180)),
    Part.LineSegment(V(14, -12, 0), V(14, -14, 0)),
    Part.LineSegment(V(14, -14, 0), V(14.5, -14, 0)),
    Part.ArcOfCircle(Part.Circle(V(14.5, -11.5, 0), V(0, 0, 1), 2.5), math.radians(-90), math.radians(0)),
    Part.LineSegment(V(17, -11.5, 0), V(17, 11.5, 0)),
    Part.ArcOfCircle(Part.Circle(V(14.5, 11.5, 0), V(0, 0, 1), 2.5), math.radians(0), math.radians(90)),
    Part.LineSegment(V(14.5, 14, 0), V(14, 14, 0)),
    Part.LineSegment(V(14, 14, 0), V(14, 12, 0)),
    Part.ArcOfCircle(Part.Circle(V(12, 12, 0), V(0, 0, 1), 2), math.radians(180), math.radians(360)),
    Part.LineSegment(V(10, 12, 0), V(10, 14, 0)),
    Part.LineSegment(V(10, 14, 0), V(-10, 14, 0)),
    Part.LineSegment(V(-10, 14, 0), V(-10, 12, 0)),
    Part.ArcOfCircle(Part.Circle(V(-12, 12, 0), V(0, 0, 1), 2), math.radians(180), math.radians(360)),
    Part.LineSegment(V(-14, 12, 0), V(-14, 14, 0)),
    Part.LineSegment(V(-14, 14, 0), V(-14.5, 14, 0)),
    Part.ArcOfCircle(Part.Circle(V(-14.5, 11.5, 0), V(0, 0, 1), 2.5), math.radians(90), math.radians(180)),
    Part.LineSegment(V(-17, 11.5, 0), V(-17, -11.5, 0)),
    Part.ArcOfCircle(Part.Circle(V(-14.5, -11.5, 0), V(0, 0, 1), 2.5), math.radians(180), math.radians(270)),
    Part.LineSegment(V(-14.5, -14, 0), V(-14, -14, 0)),
    Part.LineSegment(V(-14, -14, 0), V(-14, -12, 0)),
    Part.ArcOfCircle(Part.Circle(V(-12, -12, 0), V(0, 0, 1), 2), math.radians(0), math.radians(180)),
    Part.LineSegment(V(-10, -12, 0), V(-10, -14, 0)),
    Part.LineSegment(V(-10, -14, 0), V(0, -14, 0)),
    Part.LineSegment(V(0, -14, 0), V(0, -7.5, 0)),
], False)
sketch16.addConstraint([
    Sketcher.Constraint("Coincident", 0, 2, 1, 1),
    Sketcher.Constraint("Coincident", 1, 2, 2, 1),
    Sketcher.Constraint("Coincident", 2, 2, 3, 1),
    Sketcher.Constraint("Tangent", 3, 2, 4, 2),
    Sketcher.Constraint("Tangent", 4, 1, 5, 1),
    Sketcher.Constraint("Coincident", 5, 2, 6, 1),
    Sketcher.Constraint("Tangent", 6, 2, 7, 1),
    Sketcher.Constraint("Tangent", 7, 2, 8, 1),
    Sketcher.Constraint("Tangent", 8, 2, 9, 1),
    Sketcher.Constraint("Tangent", 9, 2, 10, 1),
    Sketcher.Constraint("Coincident", 10, 2, 11, 1),
    Sketcher.Constraint("Tangent", 11, 2, 12, 2),
    Sketcher.Constraint("Tangent", 12, 1, 13, 1),
    Sketcher.Constraint("Coincident", 13, 2, 14, 1),
    Sketcher.Constraint("Coincident", 14, 2, 15, 1),
    Sketcher.Constraint("Tangent", 15, 2, 16, 2),
    Sketcher.Constraint("Tangent", 16, 1, 17, 1),
    Sketcher.Constraint("Coincident", 17, 2, 18, 1),
    Sketcher.Constraint("Tangent", 18, 2, 19, 1),
    Sketcher.Constraint("Tangent", 19, 2, 20, 1),
    Sketcher.Constraint("Tangent", 20, 2, 21, 1),
    Sketcher.Constraint("Tangent", 21, 2, 22, 1),
    Sketcher.Constraint("Coincident", 22, 2, 23, 1),
    Sketcher.Constraint("Tangent", 23, 2, 24, 2),
    Sketcher.Constraint("Tangent", 24, 1, 25, 1),
    Sketcher.Constraint("Coincident", 25, 2, 26, 1),
    Sketcher.Constraint("Coincident", 26, 2, 27, 1),
    Sketcher.Constraint("Coincident", 27, 2, 0, 1),
    Sketcher.Constraint("Horizontal", 0),
    Sketcher.Constraint("Vertical", 1),
    Sketcher.Constraint("Horizontal", 2),
    Sketcher.Constraint("Vertical", 3),
    Sketcher.Constraint("Vertical", 5),
    Sketcher.Constraint("Horizontal", 6),
    Sketcher.Constraint("Vertical", 8),
    Sketcher.Constraint("Horizontal", 10),
    Sketcher.Constraint("Vertical", 11),
    Sketcher.Constraint("Vertical", 13),
    Sketcher.Constraint("Horizontal", 14),
    Sketcher.Constraint("Vertical", 15),
    Sketcher.Constraint("Vertical", 17),
    Sketcher.Constraint("Horizontal", 18),
    Sketcher.Constraint("Vertical", 20),
    Sketcher.Constraint("Horizontal", 22),
    Sketcher.Constraint("Vertical", 23),
    Sketcher.Constraint("Vertical", 25),
    Sketcher.Constraint("Horizontal", 26),
    Sketcher.Constraint("Vertical", 27),
    Sketcher.Constraint("Equal", 7, 9),
    Sketcher.Constraint("Equal", 4, 12),
    Sketcher.Constraint("Equal", 12, 16),
    Sketcher.Constraint("Equal", 9, 19),
    Sketcher.Constraint("Equal", 19, 21),
    Sketcher.Constraint("Equal", 16, 24),
    Sketcher.Constraint("Symmetric", 4, 3, 16, 3, -1, 1),
    Sketcher.Constraint("Symmetric", 7, 3, 19, 3, -1, 1),
    Sketcher.Constraint("Symmetric", 12, 3, 24, 3, -1, 1),
    Sketcher.Constraint("Symmetric", 12, 3, 16, 3, -2),
    Sketcher.Constraint("PointOnObject", 26, 2, -2),
    Sketcher.Constraint("Horizontal", 9, 3, 19, 3),
    Sketcher.Constraint("Horizontal", 7, 3, 21, 3),
    Sketcher.Constraint("Horizontal", 2, 2, 5, 2),
    Sketcher.Constraint("Horizontal", 10, 2, 13, 2),
    Sketcher.Constraint("Horizontal", 22, 2, 25, 2),
    Sketcher.Constraint("Radius", 4, 2.0),
    Sketcher.Constraint("Radius", 7, 2.5),
    Sketcher.Constraint("DistanceX", 14, 2, 14, 1, 20.0),
    Sketcher.Constraint("DistanceY", 3, 1, 3, 2, 2.0),
    Sketcher.Constraint("DistanceY", 8, 1, 8, 2, 23.0),
    Sketcher.Constraint("DistanceX", 0, 1, 0, 2, 9.8),
    Sketcher.Constraint("DistanceX", 6, 1, 6, 2, 0.5),
    Sketcher.Constraint("DistanceY", 1, 2, 1, 1, 6.5),
])
pad8 = doc.addObject("PartDesign::Pad", "Pad007")
body.addObject(pad8)
pad8.Profile = sketch16
pad8.Length = 1

sketch17 = doc.addObject("Sketcher::SketchObject", "Sketch016")
body.addObject(sketch17)
sketch17.AttachmentSupport = (doc.XY_Plane, [""])
sketch17.MapMode = "FlatFace"
sketch17.AttachmentOffset = App.Placement(V(0, 0, 4), App.Rotation())
add_polygon(sketch17, [(-18, 15), (-18, -15), (18, -15), (18, 15)])
sketch17.addConstraint([
    Sketcher.Constraint("Vertical", 0),
    Sketcher.Constraint("Horizontal", 1),
    Sketcher.Constraint("Vertical", 2),
    Sketcher.Constraint("Horizontal", 3),
    Sketcher.Constraint("Symmetric", 0, 2, 2, 2, -1, 1),
    Sketcher.Constraint("DistanceY", 0, 2, 0, 1, 29.00525),
    Sketcher.Constraint("DistanceX", 1, 1, 1, 2, 36.501585),
])
pocket9 = doc.addObject("PartDesign::Pocket", "Pocket008")
body.addObject(pocket9)
pocket9.Profile = sketch17
pocket9.Length = 2

sketch18 = doc.addObject("Sketcher::SketchObject", "Sketch017")
body.addObject(sketch18)
sketch18.AttachmentSupport = (doc.XY_Plane, [""])
sketch18.MapMode = "FlatFace"
sketch18.AttachmentOffset = App.Placement(V(0, 0, 2), App.Rotation())
add_polygon(sketch18, [(-9, -3), (-9, -12), (-2, -12), (-2, -3)])
sketch18.addConstraint([
    Sketcher.Constraint("Vertical", 0),
    Sketcher.Constraint("Horizontal", 1),
    Sketcher.Constraint("Vertical", 2),
    Sketcher.Constraint("Horizontal", 3),
    Sketcher.Constraint("DistanceX", 1, 1, 1, 2, 7.0),
    Sketcher.Constraint("DistanceY", 0, 2, 0, 1, 9.0),
    Sketcher.Constraint("DistanceX", 0, 2, -1, 1, 9.0),
    Sketcher.Constraint("DistanceY", 0, 2, -1, 1, 12.0),
])
pocket10 = doc.addObject("PartDesign::Pocket", "Pocket009")
body.addObject(pocket10)
pocket10.Profile = sketch18
pocket10.Length = 2

doc.recompute()
